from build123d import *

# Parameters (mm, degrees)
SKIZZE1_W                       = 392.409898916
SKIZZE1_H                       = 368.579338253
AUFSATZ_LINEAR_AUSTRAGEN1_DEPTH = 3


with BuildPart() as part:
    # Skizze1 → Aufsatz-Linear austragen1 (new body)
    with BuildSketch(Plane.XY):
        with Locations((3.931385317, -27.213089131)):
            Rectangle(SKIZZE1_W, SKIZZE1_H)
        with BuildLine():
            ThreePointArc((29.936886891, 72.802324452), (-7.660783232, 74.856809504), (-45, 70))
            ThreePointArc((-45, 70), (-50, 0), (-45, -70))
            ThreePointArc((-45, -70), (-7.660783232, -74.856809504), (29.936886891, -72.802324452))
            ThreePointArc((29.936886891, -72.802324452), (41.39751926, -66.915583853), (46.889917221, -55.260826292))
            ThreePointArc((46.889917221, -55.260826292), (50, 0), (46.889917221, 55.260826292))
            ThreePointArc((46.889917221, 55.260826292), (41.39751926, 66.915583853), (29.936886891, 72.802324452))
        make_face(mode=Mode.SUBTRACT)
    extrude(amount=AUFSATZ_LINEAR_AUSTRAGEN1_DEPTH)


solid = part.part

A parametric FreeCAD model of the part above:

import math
import FreeCAD as App
import Part
import Sketcher
from FreeCAD import Vector
Q = App.Units.Quantity

doc = App.newDocument("Part")
body = doc.addObject("PartDesign::Body", "Body")

sketch1 = doc.addObject("Sketcher::SketchObject", "Sketch")
body.addObject(sketch1)
sketch1.AttachmentSupport = (doc.XY_Plane, [""])
sketch1.MapMode = "FlatFace"
sketch1.addGeometry(Part.LineSegment(Vector(-192, 157, 0), Vector(-192, -212, 0)), False)
sketch1.addGeometry(Part.LineSegment(Vector(-192, -212, 0), Vector(200, -212, 0)), False)
sketch1.addGeometry(Part.LineSegment(Vector(200, -212, 0), Vector(200, 157, 0)), False)
sketch1.addGeometry(Part.LineSegment(Vector(200, 157, 0), Vector(-192, 157, 0)), False)
sketch1.addGeometry(Part.ArcOfCircle(Part.Circle(Vector(0, -130, 0), Vector(0, 0, 1), 205), math.radians(82), math.radians(103)), False)
sketch1.addGeometry(Part.ArcOfCircle(Part.Circle(Vector(27, 53, 0), Vector(0, 0, 1), 20), math.radians(6), math.radians(82)), False)
sketch1.addGeometry(Part.ArcOfCircle(Part.Circle(Vector(-443, 0, 0), Vector(0, 0, 1), 493), math.radians(-6.44), math.radians(6.44)), False)
sketch1.addGeometry(Part.ArcOfCircle(Part.Circle(Vector(27, -53, 0), Vector(0, 0, 1), 20), math.radians(-82), math.radians(-6)), False)
sketch1.addGeometry(Part.ArcOfCircle(Part.Circle(Vector(0, 130, 0), Vector(0, 0, 1), 205), math.radians(-103), math.radians(-82)), False)
sketch1.addGeometry(Part.ArcOfCircle(Part.Circle(Vector(442, 0, 0), Vector(0, 0, 1), 492), math.radians(171.83), math.radians(188.17)), False)
sketch1.addConstraint(Sketcher.Constraint("Coincident", 0, 2, 1, 1))
sketch1.addConstraint(Sketcher.Constraint("Coincident", 1, 2, 2, 1))
sketch1.addConstraint(Sketcher.Constraint("Coincident", 2, 2, 3, 1))
sketch1.addConstraint(Sketcher.Constraint("Coincident", 3, 2, 0, 1))
sketch1.addConstraint(Sketcher.Constraint("Tangent", 4, 1, 5, 2))
sketch1.addConstraint(Sketcher.Constraint("Tangent", 5, 1, 6, 2))
sketch1.addConstraint(Sketcher.Constraint("Tangent", 6, 1, 7, 2))
sketch1.addConstraint(Sketcher.Constraint("Tangent", 7, 1, 8, 2))
sketch1.addConstraint(Sketcher.Constraint("Coincident", 8, 1, 9, 2))
sketch1.addConstraint(Sketcher.Constraint("Coincident", 9, 1, 4, 2))
sketch1.addConstraint(Sketcher.Constraint("Vertical", 0))
sketch1.addConstraint(Sketcher.Constraint("Horizontal", 1))
sketch1.addConstraint(Sketcher.Constraint("Vertical", 2))
sketch1.addConstraint(Sketcher.Constraint("Horizontal", 3))
sketch1.addConstraint(Sketcher.Constraint("Equal", 5, 7))
sketch1.addConstraint(Sketcher.Constraint("Equal", 4, 8))
sketch1.addConstraint(Sketcher.Constraint("Equal", 6, 9))
sketch1.addConstraint(Sketcher.Constraint("Symmetric", 4, 3, 8, 3, -1, 1))
sketch1.addConstraint(Sketcher.Constraint("Symmetric", 6, 3, 9, 3, -1, 1))
sketch1.addConstraint(Sketcher.Constraint("Symmetric", 5, 3, 7, 3, -1))
sketch1.addConstraint(Sketcher.Constraint("Radius", 4, Q("205 mm")))
sketch1.addConstraint(Sketcher.Constraint("Radius", 5, Q("20 mm")))
sketch1.addConstraint(Sketcher.Constraint("Radius", 6, Q("492.5 mm")))
sketch1.addConstraint(Sketcher.Constraint("DistanceY", 4, 3, -1, 1, Q("130 mm")))
sketch1.addConstraint(Sketcher.Constraint("DistanceX", 8, 1, -1, 1, Q("45 mm")))
sketch1.addConstraint(Sketcher.Constraint("DistanceX", 1, 1, 1, 2, Q("392.409899 mm")))
sketch1.addConstraint(Sketcher.Constraint("DistanceY", 0, 2, 0, 1, Q("368.579338 mm")))
sketch1.addConstraint(Sketcher.Constraint("DistanceY", 0, 2, -1, 1, Q("211.502758 mm")))
sketch1.addConstraint(Sketcher.Constraint("DistanceX", 0, 2, 7, 3, Q("219.289779 mm")))
pad1 = doc.addObject("PartDesign::Pad", "Pad")
body.addObject(pad1)
pad1.Profile = sketch1
pad1.Length = 3

doc.recompute()
